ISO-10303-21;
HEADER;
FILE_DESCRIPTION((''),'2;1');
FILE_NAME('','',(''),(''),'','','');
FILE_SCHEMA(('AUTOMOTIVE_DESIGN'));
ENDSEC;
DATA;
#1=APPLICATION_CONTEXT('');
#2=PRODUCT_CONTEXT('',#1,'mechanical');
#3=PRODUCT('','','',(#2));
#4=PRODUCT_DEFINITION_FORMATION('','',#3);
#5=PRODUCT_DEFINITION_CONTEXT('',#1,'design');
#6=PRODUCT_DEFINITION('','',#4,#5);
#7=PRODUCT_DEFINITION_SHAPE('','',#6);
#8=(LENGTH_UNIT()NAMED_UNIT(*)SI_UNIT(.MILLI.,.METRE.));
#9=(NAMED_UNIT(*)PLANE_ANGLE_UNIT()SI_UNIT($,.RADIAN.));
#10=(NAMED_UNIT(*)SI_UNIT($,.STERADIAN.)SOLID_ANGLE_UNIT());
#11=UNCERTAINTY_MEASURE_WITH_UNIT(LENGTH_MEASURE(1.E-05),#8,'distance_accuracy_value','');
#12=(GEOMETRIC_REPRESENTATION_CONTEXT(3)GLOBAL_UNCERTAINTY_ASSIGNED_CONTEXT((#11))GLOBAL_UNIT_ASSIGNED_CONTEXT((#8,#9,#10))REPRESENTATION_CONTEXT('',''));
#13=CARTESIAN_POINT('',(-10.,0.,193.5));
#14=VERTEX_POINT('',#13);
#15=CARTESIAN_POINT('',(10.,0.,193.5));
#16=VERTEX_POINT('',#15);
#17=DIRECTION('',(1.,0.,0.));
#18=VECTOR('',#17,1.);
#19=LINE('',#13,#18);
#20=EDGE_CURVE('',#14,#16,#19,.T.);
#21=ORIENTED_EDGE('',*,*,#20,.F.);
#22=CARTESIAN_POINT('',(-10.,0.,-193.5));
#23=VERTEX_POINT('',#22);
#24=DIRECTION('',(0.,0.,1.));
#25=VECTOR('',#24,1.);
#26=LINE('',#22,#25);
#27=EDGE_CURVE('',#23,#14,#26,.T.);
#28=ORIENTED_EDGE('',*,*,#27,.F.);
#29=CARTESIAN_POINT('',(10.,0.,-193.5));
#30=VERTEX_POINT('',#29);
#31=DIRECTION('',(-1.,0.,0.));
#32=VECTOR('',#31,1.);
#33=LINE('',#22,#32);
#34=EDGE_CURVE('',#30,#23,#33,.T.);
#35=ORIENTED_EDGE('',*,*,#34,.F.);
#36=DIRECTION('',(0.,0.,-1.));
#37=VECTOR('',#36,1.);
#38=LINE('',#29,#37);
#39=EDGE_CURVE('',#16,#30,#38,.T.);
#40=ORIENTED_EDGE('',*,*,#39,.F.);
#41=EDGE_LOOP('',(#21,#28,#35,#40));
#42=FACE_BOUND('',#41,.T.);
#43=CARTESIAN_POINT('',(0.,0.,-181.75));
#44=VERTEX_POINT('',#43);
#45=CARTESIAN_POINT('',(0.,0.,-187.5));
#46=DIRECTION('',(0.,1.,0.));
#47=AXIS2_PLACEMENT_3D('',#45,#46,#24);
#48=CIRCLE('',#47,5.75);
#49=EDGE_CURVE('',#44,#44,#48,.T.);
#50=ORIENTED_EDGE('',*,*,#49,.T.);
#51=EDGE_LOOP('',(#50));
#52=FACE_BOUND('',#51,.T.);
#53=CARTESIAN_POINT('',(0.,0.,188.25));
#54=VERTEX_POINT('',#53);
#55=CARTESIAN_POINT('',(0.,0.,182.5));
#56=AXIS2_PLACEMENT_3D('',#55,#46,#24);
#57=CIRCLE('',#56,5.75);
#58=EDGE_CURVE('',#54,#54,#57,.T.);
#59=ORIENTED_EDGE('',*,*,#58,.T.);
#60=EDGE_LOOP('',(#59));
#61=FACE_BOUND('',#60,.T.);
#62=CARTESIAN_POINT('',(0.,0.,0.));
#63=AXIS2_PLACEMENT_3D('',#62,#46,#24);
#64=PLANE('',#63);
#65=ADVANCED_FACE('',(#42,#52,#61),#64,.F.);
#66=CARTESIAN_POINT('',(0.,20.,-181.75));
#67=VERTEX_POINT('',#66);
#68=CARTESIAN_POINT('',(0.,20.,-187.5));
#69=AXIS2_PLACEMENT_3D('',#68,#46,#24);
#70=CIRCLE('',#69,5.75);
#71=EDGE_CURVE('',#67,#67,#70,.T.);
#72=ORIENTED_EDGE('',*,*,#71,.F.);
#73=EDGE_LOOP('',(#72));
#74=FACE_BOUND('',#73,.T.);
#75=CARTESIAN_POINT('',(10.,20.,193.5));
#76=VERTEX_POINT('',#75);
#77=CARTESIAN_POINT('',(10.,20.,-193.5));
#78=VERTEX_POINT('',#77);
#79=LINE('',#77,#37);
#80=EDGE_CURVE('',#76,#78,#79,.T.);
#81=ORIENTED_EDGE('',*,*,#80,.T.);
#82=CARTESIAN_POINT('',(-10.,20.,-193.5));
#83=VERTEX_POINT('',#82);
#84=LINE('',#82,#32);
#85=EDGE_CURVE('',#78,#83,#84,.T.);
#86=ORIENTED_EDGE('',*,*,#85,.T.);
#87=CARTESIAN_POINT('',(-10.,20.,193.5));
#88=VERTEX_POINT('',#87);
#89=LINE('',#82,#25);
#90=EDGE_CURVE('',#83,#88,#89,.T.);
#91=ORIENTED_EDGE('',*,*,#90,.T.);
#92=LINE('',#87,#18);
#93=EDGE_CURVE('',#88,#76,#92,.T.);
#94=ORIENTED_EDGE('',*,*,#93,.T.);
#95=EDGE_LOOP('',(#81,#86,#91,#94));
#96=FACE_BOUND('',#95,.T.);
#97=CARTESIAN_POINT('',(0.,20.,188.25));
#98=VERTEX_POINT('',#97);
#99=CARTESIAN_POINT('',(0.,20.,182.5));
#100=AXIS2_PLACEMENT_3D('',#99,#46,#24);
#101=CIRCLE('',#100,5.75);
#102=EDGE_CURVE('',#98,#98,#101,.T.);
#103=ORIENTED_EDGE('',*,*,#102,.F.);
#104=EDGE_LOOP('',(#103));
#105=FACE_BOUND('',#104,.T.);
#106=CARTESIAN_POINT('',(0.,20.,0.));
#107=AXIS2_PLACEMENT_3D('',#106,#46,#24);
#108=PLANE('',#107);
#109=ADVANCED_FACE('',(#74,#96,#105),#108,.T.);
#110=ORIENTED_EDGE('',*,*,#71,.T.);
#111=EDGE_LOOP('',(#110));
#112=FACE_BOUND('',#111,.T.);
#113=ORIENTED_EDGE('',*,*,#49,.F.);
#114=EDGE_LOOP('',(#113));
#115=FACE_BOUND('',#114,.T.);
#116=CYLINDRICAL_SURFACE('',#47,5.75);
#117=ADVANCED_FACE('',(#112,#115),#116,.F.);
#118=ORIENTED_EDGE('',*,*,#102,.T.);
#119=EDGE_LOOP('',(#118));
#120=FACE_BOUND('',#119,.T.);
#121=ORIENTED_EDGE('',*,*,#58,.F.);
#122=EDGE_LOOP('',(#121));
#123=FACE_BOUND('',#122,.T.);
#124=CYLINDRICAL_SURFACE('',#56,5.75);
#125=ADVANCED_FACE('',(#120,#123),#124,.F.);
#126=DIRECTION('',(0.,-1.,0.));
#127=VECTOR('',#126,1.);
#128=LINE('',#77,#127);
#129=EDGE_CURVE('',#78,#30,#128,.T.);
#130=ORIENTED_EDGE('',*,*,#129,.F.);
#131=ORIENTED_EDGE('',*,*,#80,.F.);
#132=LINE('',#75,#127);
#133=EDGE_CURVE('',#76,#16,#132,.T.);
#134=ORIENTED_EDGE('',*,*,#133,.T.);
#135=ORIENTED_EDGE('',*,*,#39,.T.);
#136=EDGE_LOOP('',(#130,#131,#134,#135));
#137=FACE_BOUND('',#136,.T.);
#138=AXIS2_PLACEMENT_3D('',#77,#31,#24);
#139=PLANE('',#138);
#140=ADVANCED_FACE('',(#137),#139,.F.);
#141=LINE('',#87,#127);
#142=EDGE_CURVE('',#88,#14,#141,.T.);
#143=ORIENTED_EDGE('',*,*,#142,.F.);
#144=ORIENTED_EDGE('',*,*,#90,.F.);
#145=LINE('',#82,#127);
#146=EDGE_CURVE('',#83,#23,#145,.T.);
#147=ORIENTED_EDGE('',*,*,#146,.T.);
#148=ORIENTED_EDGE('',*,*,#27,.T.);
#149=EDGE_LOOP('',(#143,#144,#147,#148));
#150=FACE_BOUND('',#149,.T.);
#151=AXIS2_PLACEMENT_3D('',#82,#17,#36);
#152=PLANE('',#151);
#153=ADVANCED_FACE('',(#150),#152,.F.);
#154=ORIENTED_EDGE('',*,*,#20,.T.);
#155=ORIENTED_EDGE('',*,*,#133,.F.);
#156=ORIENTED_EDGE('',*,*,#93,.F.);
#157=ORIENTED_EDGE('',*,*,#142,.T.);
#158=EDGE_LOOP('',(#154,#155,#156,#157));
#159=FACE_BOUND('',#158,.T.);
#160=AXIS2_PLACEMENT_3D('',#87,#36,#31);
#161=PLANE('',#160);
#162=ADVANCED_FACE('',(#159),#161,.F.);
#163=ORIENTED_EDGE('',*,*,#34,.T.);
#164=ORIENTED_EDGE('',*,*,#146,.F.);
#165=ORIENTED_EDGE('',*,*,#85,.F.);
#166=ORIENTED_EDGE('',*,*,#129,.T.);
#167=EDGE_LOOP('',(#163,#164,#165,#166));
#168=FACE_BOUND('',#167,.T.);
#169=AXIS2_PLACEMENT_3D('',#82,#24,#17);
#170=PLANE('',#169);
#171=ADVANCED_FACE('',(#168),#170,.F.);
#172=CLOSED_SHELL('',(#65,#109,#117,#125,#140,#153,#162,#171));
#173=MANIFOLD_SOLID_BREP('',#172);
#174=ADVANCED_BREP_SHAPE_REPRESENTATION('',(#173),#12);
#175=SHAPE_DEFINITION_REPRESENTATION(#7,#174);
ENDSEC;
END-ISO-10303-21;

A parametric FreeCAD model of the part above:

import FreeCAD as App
import Part
import Sketcher
from FreeCAD import Vector
Q = App.Units.Quantity


def add_polygon(sketch, points):
    """Adds a closed chain of lines whose ends are joined by coincident constraints."""
    first, n = sketch.GeometryCount, len(points)
    for a, b in zip(points, points[1:] + points[:1]):
        sketch.addGeometry(Part.LineSegment(App.Vector(*a, 0), App.Vector(*b, 0)), False)
    for i in range(n):
        sketch.addConstraint(Sketcher.Constraint("Coincident", first + i, 2, first + (i + 1) % n, 1))

doc = App.newDocument("Part")
body = doc.addObject("PartDesign::Body", "Body")

# Sketch on XZ plane
sketch1 = body.newObject("Sketcher::SketchObject", "Sketch")
sketch1.AttachmentSupport = (doc.getObject("XZ_Plane"), [""])
sketch1.MapMode = "FlatFace"
add_polygon(sketch1, [(-10, -194), (-10, 194), (10, 194), (10, -194)])  # lines 0-3
sketch1.addConstraint([
    Sketcher.Constraint("Vertical", 0),
    Sketcher.Constraint("Horizontal", 1),
    Sketcher.Constraint("Vertical", 2),
    Sketcher.Constraint("Horizontal", 3),
    Sketcher.Constraint("Symmetric", 0, 2, 2, 2, -1, 1),
    Sketcher.Constraint("DistanceX", 1, 1, 1, 2, Q("20 mm")),
    Sketcher.Constraint("DistanceY", 0, 1, 0, 2, Q("387 mm")),
])
pad1 = body.newObject("PartDesign::Pad", "Pad")
pad1.Profile = sketch1
pad1.Length = 20
pad1.Reversed = True

# Sketch on XZ plane
sketch2 = body.newObject("Sketcher::SketchObject", "Sketch001")
sketch2.AttachmentSupport = (doc.getObject("XZ_Plane"), [""])
sketch2.MapMode = "FlatFace"
sketch2.AttachmentOffset = App.Placement(Vector(0, 0, -20), App.Rotation())
sketch2.addGeometry([
    Part.Circle(Vector(0, -188, 0), Vector(0, 0, 1), 6),
    Part.Circle(Vector(0, 182, 0), Vector(0, 0, 1), 6),
], False)
sketch2.addConstraint([
    Sketcher.Constraint("Equal", 0, 1),
    Sketcher.Constraint("PointOnObject", 0, 3, -2),
    Sketcher.Constraint("PointOnObject", 1, 3, -2),
    Sketcher.Constraint("Diameter", 0, Q("11.5 mm")),
    Sketcher.Constraint("DistanceY", 0, 3, 1, 3, Q("370 mm")),
    Sketcher.Constraint("DistanceY", 0, 3, -1, 1, Q("187.5 mm")),
])
pocket1 = body.newObject("PartDesign::Pocket", "Pocket")
pocket1.Profile = sketch2
pocket1.Type = "ThroughAll"
pocket1.Reversed = True

doc.recompute()
